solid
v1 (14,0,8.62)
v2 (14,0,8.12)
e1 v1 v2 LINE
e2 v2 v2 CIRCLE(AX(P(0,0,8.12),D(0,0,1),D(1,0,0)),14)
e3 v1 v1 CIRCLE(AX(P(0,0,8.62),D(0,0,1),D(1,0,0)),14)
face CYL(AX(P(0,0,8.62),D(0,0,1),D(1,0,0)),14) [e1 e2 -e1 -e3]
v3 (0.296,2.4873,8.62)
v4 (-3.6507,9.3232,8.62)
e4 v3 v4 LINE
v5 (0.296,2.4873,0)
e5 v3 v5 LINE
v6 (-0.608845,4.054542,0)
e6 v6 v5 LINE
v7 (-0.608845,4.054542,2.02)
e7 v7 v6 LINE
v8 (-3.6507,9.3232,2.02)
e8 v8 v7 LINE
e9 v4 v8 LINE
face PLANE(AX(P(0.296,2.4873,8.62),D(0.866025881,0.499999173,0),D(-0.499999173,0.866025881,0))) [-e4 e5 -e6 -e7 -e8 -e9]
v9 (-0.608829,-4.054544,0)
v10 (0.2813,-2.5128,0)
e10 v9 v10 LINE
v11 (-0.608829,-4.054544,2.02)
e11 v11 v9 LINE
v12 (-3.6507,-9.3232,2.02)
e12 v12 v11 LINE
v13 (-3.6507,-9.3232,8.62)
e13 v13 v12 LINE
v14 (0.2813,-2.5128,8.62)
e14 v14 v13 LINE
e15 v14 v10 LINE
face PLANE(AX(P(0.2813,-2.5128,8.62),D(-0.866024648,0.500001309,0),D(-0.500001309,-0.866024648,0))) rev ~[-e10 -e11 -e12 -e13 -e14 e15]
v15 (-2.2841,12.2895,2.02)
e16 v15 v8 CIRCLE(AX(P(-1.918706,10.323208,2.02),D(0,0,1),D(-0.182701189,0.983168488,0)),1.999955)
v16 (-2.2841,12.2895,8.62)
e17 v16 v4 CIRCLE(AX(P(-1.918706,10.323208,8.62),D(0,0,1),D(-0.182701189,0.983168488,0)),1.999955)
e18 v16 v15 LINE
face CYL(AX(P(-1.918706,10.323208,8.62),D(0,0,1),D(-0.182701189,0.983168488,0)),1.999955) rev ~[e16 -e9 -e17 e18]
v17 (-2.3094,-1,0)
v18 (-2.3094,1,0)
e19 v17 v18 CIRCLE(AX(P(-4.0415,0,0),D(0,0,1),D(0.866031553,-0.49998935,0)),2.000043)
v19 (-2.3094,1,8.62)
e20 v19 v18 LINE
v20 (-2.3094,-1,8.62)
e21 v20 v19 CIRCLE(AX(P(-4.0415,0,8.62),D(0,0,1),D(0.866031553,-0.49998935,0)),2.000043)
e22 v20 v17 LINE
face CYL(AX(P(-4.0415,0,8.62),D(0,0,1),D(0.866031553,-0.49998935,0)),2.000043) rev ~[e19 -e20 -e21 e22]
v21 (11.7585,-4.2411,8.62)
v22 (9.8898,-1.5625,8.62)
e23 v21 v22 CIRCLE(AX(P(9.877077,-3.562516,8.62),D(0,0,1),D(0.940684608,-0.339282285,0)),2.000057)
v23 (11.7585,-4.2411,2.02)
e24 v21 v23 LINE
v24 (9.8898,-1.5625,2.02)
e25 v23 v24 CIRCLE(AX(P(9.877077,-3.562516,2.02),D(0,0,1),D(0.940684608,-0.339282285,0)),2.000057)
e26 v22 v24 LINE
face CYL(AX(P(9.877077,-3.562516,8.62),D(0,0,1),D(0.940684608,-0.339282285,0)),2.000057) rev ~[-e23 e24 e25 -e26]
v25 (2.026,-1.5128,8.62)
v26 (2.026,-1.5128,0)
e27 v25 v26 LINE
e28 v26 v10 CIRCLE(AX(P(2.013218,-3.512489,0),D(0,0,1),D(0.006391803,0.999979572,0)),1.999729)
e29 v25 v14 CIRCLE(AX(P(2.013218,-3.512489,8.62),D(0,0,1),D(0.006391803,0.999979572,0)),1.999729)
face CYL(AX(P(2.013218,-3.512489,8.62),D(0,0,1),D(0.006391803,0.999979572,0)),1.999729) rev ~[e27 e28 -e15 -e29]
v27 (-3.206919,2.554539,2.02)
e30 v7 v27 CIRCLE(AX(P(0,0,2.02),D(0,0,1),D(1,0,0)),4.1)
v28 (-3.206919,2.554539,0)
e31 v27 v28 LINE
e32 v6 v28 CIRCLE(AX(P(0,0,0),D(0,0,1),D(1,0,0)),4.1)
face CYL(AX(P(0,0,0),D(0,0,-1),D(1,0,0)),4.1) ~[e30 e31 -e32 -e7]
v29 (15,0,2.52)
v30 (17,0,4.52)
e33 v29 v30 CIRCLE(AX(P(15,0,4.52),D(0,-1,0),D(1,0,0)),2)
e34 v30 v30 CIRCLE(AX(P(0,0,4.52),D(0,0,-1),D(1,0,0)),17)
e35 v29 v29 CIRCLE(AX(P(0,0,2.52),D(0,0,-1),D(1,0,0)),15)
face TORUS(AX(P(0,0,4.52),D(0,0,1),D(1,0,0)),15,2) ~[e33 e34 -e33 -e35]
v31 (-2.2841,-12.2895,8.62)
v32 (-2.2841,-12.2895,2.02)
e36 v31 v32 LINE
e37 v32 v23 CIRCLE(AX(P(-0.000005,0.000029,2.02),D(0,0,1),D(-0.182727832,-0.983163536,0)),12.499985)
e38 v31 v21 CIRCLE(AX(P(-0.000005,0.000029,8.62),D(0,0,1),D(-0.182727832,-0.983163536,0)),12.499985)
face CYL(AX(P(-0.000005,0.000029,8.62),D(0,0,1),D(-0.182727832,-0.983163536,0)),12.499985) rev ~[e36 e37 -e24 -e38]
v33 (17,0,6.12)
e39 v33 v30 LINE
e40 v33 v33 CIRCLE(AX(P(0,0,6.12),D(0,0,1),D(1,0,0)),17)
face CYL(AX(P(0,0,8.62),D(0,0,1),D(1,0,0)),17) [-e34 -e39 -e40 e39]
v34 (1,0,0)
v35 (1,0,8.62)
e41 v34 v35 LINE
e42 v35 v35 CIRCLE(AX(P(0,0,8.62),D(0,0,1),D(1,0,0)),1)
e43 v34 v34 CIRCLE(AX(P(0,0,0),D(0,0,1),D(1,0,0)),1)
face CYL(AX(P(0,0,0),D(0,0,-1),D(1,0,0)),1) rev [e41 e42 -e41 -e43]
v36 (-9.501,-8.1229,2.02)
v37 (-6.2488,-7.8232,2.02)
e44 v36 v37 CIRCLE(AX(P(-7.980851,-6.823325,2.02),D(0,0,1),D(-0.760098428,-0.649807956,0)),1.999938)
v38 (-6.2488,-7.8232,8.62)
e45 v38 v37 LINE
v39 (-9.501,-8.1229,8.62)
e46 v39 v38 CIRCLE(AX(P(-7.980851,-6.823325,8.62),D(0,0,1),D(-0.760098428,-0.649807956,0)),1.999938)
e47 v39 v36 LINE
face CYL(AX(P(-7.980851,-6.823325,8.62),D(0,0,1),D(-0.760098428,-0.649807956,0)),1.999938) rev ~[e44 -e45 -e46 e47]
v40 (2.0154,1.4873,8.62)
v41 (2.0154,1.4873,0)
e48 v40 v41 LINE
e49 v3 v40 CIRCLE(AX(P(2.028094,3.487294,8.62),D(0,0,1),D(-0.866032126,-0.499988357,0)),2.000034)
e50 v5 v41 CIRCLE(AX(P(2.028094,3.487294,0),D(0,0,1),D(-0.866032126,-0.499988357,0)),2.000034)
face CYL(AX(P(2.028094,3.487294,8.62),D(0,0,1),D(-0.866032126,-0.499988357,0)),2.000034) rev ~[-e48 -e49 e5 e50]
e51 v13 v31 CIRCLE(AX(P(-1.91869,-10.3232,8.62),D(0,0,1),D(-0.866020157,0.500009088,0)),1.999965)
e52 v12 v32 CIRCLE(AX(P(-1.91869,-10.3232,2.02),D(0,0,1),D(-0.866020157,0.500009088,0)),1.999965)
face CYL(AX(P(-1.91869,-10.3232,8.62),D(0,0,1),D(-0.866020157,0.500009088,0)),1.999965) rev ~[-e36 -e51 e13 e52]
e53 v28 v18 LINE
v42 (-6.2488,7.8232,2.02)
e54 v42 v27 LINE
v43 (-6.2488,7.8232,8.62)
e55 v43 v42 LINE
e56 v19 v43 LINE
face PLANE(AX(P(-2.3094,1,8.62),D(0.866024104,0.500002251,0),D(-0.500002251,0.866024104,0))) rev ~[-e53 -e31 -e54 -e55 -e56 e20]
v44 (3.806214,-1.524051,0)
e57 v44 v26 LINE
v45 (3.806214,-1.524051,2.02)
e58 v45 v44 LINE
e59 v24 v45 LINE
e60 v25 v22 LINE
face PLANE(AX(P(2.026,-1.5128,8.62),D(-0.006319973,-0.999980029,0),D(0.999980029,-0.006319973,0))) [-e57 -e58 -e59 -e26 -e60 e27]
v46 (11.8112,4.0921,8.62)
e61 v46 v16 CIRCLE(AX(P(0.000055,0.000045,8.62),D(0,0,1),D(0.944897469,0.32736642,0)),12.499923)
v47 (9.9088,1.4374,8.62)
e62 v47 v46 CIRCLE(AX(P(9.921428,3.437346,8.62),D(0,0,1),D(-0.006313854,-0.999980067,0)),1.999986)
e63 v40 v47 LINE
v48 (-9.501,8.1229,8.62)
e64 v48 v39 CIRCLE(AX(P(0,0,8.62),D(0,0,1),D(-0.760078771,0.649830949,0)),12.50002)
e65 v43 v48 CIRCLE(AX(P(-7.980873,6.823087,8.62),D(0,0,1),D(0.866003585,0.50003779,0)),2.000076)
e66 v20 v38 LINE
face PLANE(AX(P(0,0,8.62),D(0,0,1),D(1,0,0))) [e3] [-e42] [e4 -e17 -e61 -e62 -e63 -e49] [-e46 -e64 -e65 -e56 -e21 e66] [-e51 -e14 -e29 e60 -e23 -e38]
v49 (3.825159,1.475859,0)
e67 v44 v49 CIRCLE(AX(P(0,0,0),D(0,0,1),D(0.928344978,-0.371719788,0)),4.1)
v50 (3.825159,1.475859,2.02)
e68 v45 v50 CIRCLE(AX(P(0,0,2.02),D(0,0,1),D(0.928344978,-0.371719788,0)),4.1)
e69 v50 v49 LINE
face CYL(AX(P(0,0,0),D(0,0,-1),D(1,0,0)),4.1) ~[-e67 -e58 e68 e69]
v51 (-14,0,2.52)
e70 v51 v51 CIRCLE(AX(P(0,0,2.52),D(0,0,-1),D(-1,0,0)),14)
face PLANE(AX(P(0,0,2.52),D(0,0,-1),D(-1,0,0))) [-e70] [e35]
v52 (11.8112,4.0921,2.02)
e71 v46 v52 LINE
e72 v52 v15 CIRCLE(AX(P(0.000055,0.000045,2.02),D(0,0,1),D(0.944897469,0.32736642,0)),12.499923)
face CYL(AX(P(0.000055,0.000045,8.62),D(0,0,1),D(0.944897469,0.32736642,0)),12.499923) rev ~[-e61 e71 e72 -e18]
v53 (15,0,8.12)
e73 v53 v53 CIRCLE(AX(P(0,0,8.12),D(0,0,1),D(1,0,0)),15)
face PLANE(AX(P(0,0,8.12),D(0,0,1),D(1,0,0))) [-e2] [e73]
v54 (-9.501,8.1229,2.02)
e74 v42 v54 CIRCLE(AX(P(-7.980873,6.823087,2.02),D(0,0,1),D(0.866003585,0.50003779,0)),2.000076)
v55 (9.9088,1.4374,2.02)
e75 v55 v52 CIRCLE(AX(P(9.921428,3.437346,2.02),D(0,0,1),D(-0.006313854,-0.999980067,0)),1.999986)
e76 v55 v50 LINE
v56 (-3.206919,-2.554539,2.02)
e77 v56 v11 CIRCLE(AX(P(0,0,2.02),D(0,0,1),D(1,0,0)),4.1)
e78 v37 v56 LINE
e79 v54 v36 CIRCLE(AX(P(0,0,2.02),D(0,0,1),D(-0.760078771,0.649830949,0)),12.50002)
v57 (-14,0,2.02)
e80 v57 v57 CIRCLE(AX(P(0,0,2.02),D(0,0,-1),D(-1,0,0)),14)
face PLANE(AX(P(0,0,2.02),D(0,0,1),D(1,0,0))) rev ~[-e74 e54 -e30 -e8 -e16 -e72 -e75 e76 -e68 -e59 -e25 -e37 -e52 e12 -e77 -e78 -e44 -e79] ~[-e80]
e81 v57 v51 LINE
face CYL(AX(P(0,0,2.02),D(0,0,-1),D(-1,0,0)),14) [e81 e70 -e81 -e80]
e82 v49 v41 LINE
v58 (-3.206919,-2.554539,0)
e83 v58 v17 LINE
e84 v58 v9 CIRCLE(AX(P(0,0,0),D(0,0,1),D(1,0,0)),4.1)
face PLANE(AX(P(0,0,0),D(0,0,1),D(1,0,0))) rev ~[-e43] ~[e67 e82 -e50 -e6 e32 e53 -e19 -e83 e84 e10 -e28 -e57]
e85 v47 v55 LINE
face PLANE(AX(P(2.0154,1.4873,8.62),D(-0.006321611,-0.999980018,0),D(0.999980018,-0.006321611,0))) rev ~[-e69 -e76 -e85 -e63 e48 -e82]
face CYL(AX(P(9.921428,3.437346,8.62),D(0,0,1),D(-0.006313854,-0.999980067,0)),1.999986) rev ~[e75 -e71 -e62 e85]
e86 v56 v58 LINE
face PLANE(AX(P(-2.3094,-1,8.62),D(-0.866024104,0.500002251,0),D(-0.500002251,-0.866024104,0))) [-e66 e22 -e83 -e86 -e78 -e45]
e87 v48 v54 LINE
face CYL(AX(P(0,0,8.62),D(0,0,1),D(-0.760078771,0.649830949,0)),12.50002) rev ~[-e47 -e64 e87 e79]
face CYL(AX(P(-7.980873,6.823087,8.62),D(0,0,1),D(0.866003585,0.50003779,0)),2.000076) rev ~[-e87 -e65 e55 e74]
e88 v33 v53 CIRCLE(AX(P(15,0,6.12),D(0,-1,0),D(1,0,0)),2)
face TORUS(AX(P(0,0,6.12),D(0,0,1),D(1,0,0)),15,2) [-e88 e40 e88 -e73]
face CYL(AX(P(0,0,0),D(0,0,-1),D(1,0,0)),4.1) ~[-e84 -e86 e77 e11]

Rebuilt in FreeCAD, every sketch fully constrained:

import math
import FreeCAD as App
import Part
import Sketcher

V = App.Vector


def edges_at(feature, points):
    """Names of the edges that pass closest to the given points."""
    edges = feature.Shape.Edges
    near = lambda p: min(range(len(edges)), key=lambda i: edges[i].distToShape(Part.Vertex(*p))[0])
    return sorted({f"Edge{near(p) + 1}" for p in points})

doc = App.newDocument("Part")
body = doc.addObject("PartDesign::Body", "Body")

# Sketch on XY plane
sketch1 = doc.addObject("Sketcher::SketchObject", "Sketch")
body.addObject(sketch1)
sketch1.AttachmentSupport = (doc.XY_Plane, [""])
sketch1.MapMode = "FlatFace"
sketch1.addGeometry([
    Part.Circle(V(0, 0, 0), V(0, 0, 1), 4.1),
    Part.Circle(V(0, 0, 0), V(0, 0, 1), 1),
], False)
sketch1.addConstraint([
    Sketcher.Constraint("Coincident", 0, 3, -1, 1),
    Sketcher.Constraint("Coincident", 1, 3, -1, 1),
    Sketcher.Constraint("Diameter", 0, 8.2),
    Sketcher.Constraint("Diameter", 1, 2.0),
])
pad1 = doc.addObject("PartDesign::Pad", "Pad")
body.addObject(pad1)
pad1.Profile = sketch1
pad1.Length = 8.62

# Sketch on XY plane
sketch2 = doc.addObject("Sketcher::SketchObject", "Sketch001")
body.addObject(sketch2)
sketch2.AttachmentSupport = (doc.XY_Plane, [""])
sketch2.MapMode = "FlatFace"
sketch2.AttachmentOffset = App.Placement(V(0, 0, 8.62), App.Rotation())
sketch2.addGeometry([
    Part.Circle(V(0, 0, 0), V(0, 0, 1), 17),
    Part.Circle(V(0, 0, 0), V(0, 0, 1), 4.1),
], False)
sketch2.addConstraint([
    Sketcher.Constraint("Coincident", 0, 3, -1, 1),
    Sketcher.Constraint("Coincident", 1, 3, -1, 1),
    Sketcher.Constraint("Diameter", 0, 34.0),
    Sketcher.Constraint("Diameter", 1, 8.2),
])
pad2 = doc.addObject("PartDesign::Pad", "Pad001")
body.addObject(pad2)
pad2.Profile = sketch2
pad2.Length = 6.6
pad2.Reversed = True

# Sketch on XY plane
sketch3 = doc.addObject("Sketcher::SketchObject", "Sketch002")
body.addObject(sketch3)
sketch3.AttachmentSupport = (doc.XY_Plane, [""])
sketch3.MapMode = "FlatFace"
sketch3.AttachmentOffset = App.Placement(V(0, 0, 8.62), App.Rotation())
sketch3.addGeometry([
    Part.Circle(V(0, 0, 0), V(0, 0, 1), 17),
    Part.Circle(V(0, 0, 0), V(0, 0, 1), 14),
], False)
sketch3.addConstraint([
    Sketcher.Constraint("Coincident", 0, 3, -1, 1),
    Sketcher.Constraint("Coincident", 1, 3, -1, 1),
    Sketcher.Constraint("Diameter", 0, 34.0),
    Sketcher.Constraint("Diameter", 1, 28.0),
])
pocket1 = doc.addObject("PartDesign::Pocket", "Pocket")
body.addObject(pocket1)
pocket1.Profile = sketch3
pocket1.Length = 0.5

# Sketch on XY plane
sketch4 = doc.addObject("Sketcher::SketchObject", "Sketch003")
body.addObject(sketch4)
sketch4.AttachmentSupport = (doc.XY_Plane, [""])
sketch4.MapMode = "FlatFace"
sketch4.AttachmentOffset = App.Placement(V(0, 0, 2.02), App.Rotation())
sketch4.addGeometry([
    Part.Circle(V(0, 0, 0), V(0, 0, 1), 17),
    Part.Circle(V(0, 0, 0), V(0, 0, 1), 14),
], False)
sketch4.addConstraint([
    Sketcher.Constraint("Coincident", 0, 3, -1, 1),
    Sketcher.Constraint("Coincident", 1, 3, -1, 1),
    Sketcher.Constraint("Diameter", 0, 34.0),
    Sketcher.Constraint("Diameter", 1, 28.0),
])
pocket2 = doc.addObject("PartDesign::Pocket", "Pocket001")
body.addObject(pocket2)
pocket2.Profile = sketch4
pocket2.Length = 0.5
pocket2.Reversed = True
doc.recompute()

fillet = doc.addObject("PartDesign::Fillet", "Fillet")
body.addObject(fillet)
fillet.Base = (pocket2, edges_at(pocket2, [(-17, 0, 2.52), (-17, 0, 8.12)]))
fillet.Radius = 2

# Sketch on XY plane
sketch5 = doc.addObject("Sketcher::SketchObject", "Sketch004")
body.addObject(sketch5)
sketch5.AttachmentSupport = (doc.XY_Plane, [""])
sketch5.MapMode = "FlatFace"
sketch5.AttachmentOffset = App.Placement(V(0, 0, 8.62), App.Rotation())
sketch5.addGeometry([
    Part.LineSegment(V(9.9, -1.6, 0), V(2, -1.5, 0)),  # 0
    Part.ArcOfCircle(Part.Circle(V(2, -3.5, 0), V(0, 0, 1), 2), math.radians(90), math.radians(150)),  # 1
    Part.LineSegment(V(0.3, -2.5, 0), V(-3.7, -9.3, 0)),  # 2
    Part.ArcOfCircle(Part.Circle(V(-1.9, -10.3, 0), V(0, 0, 1), 2), math.radians(150), math.radians(259)),  # 3
    Part.ArcOfCircle(Part.Circle(V(0, 0, 0), V(0, 0, 1), 12.5), math.radians(-101), math.radians(-20)),  # 4
    Part.ArcOfCircle(Part.Circle(V(9.9, -3.6, 0), V(0, 0, 1), 2), math.radians(-20), math.radians(90)),  # 5
    Part.LineSegment(V(-6.2, -7.8, 0), V(-2.3, -1, 0)),  # 6
    Part.ArcOfCircle(Part.Circle(V(-4, 0, 0), V(0, 0, 1), 2), math.radians(-30), math.radians(30)),  # 7
    Part.LineSegment(V(-2.3, 1, 0), V(-6.2, 7.8, 0)),  # 8
    Part.ArcOfCircle(Part.Circle(V(-8, 6.8, 0), V(0, 0, 1), 2), math.radians(30), math.radians(139)),  # 9
    Part.ArcOfCircle(Part.Circle(V(0, 0, 0), V(0, 0, 1), 12.5), math.radians(139), math.radians(221)),  # 10
    Part.ArcOfCircle(Part.Circle(V(-8, -6.8, 0), V(0, 0, 1), 2), math.radians(-139), math.radians(-30)),  # 11
    Part.LineSegment(V(-3.7, 9.3, 0), V(0.3, 2.5, 0)),  # 12
    Part.ArcOfCircle(Part.Circle(V(2, 3.5, 0), V(0, 0, 1), 2), math.radians(-150), math.radians(-90)),  # 13
    Part.LineSegment(V(2, 1.5, 0), V(9.9, 1.4, 0)),  # 14
    Part.ArcOfCircle(Part.Circle(V(9.9, 3.4, 0), V(0, 0, 1), 2), math.radians(-90), math.radians(19)),  # 15
    Part.ArcOfCircle(Part.Circle(V(0, 0, 0), V(0, 0, 1), 12.5), math.radians(19), math.radians(101)),  # 16
    Part.ArcOfCircle(Part.Circle(V(-1.9, 10.3, 0), V(0, 0, 1), 2), math.radians(101), math.radians(210)),  # 17
], False)
sketch5.addConstraint([
    Sketcher.Constraint("Tangent", 0, 2, 1, 1),
    Sketcher.Constraint("Tangent", 1, 2, 2, 1),
    Sketcher.Constraint("Tangent", 2, 2, 3, 1),
    Sketcher.Constraint("Tangent", 3, 2, 4, 1),
    Sketcher.Constraint("Tangent", 4, 2, 5, 1),
    Sketcher.Constraint("Tangent", 5, 2, 0, 1),
    Sketcher.Constraint("Tangent", 6, 2, 7, 1),
    Sketcher.Constraint("Tangent", 7, 2, 8, 1),
    Sketcher.Constraint("Tangent", 8, 2, 9, 1),
    Sketcher.Constraint("Tangent", 9, 2, 10, 1),
    Sketcher.Constraint("Tangent", 10, 2, 11, 1),
    Sketcher.Constraint("Tangent", 11, 2, 6, 1),
    Sketcher.Constraint("Tangent", 12, 2, 13, 1),
    Sketcher.Constraint("Tangent", 13, 2, 14, 1),
    Sketcher.Constraint("Tangent", 14, 2, 15, 1),
    Sketcher.Constraint("Tangent", 15, 2, 16, 1),
    Sketcher.Constraint("Tangent", 16, 2, 17, 1),
    Sketcher.Constraint("Tangent", 17, 2, 12, 1),
    Sketcher.Constraint("Coincident", 4, 3, -1, 1),
    Sketcher.Constraint("Coincident", 10, 3, -1, 1),
    Sketcher.Constraint("Coincident", 16, 3, -1, 1),
    Sketcher.Constraint("Equal", 1, 3),
    Sketcher.Constraint("Equal", 3, 5),
    Sketcher.Constraint("Equal", 5, 7),
    Sketcher.Constraint("Equal", 7, 9),
    Sketcher.Constraint("Equal", 4, 10),
    Sketcher.Constraint("Equal", 9, 11),
    Sketcher.Constraint("Equal", 11, 13),
    Sketcher.Constraint("Equal", 13, 15),
    Sketcher.Constraint("Equal", 10, 16),
    Sketcher.Constraint("Equal", 15, 17),
    Sketcher.Constraint("Symmetric", 6, 2, 7, 2, -1),
    Sketcher.Constraint("Symmetric", 2, 2, 17, 2, -1),
    Sketcher.Constraint("Parallel", 2, 6),
    Sketcher.Constraint("Parallel", 0, 14),
    Sketcher.Constraint("Equal", 0, 2),
    Sketcher.Constraint("Equal", 12, 14),
    Sketcher.Constraint("Radius", 1, 2.0),
    Sketcher.Constraint("DistanceY", 6, 2, 7, 2, 2.0),
    Sketcher.Constraint("Radius", 4, 12.5),
    Sketcher.Constraint("DistanceY", 2, 2, 11, 2, 1.5),
    Sketcher.Constraint("DistanceY", 1, 3, 13, 3, 7.0),
    Sketcher.Constraint("DistanceY", 15, 3, 13, 3, 0.05),
])
pocket3 = doc.addObject("PartDesign::Pocket", "Pocket002")
body.addObject(pocket3)
pocket3.Profile = sketch5
pocket3.Length = 8.62

doc.recompute()
